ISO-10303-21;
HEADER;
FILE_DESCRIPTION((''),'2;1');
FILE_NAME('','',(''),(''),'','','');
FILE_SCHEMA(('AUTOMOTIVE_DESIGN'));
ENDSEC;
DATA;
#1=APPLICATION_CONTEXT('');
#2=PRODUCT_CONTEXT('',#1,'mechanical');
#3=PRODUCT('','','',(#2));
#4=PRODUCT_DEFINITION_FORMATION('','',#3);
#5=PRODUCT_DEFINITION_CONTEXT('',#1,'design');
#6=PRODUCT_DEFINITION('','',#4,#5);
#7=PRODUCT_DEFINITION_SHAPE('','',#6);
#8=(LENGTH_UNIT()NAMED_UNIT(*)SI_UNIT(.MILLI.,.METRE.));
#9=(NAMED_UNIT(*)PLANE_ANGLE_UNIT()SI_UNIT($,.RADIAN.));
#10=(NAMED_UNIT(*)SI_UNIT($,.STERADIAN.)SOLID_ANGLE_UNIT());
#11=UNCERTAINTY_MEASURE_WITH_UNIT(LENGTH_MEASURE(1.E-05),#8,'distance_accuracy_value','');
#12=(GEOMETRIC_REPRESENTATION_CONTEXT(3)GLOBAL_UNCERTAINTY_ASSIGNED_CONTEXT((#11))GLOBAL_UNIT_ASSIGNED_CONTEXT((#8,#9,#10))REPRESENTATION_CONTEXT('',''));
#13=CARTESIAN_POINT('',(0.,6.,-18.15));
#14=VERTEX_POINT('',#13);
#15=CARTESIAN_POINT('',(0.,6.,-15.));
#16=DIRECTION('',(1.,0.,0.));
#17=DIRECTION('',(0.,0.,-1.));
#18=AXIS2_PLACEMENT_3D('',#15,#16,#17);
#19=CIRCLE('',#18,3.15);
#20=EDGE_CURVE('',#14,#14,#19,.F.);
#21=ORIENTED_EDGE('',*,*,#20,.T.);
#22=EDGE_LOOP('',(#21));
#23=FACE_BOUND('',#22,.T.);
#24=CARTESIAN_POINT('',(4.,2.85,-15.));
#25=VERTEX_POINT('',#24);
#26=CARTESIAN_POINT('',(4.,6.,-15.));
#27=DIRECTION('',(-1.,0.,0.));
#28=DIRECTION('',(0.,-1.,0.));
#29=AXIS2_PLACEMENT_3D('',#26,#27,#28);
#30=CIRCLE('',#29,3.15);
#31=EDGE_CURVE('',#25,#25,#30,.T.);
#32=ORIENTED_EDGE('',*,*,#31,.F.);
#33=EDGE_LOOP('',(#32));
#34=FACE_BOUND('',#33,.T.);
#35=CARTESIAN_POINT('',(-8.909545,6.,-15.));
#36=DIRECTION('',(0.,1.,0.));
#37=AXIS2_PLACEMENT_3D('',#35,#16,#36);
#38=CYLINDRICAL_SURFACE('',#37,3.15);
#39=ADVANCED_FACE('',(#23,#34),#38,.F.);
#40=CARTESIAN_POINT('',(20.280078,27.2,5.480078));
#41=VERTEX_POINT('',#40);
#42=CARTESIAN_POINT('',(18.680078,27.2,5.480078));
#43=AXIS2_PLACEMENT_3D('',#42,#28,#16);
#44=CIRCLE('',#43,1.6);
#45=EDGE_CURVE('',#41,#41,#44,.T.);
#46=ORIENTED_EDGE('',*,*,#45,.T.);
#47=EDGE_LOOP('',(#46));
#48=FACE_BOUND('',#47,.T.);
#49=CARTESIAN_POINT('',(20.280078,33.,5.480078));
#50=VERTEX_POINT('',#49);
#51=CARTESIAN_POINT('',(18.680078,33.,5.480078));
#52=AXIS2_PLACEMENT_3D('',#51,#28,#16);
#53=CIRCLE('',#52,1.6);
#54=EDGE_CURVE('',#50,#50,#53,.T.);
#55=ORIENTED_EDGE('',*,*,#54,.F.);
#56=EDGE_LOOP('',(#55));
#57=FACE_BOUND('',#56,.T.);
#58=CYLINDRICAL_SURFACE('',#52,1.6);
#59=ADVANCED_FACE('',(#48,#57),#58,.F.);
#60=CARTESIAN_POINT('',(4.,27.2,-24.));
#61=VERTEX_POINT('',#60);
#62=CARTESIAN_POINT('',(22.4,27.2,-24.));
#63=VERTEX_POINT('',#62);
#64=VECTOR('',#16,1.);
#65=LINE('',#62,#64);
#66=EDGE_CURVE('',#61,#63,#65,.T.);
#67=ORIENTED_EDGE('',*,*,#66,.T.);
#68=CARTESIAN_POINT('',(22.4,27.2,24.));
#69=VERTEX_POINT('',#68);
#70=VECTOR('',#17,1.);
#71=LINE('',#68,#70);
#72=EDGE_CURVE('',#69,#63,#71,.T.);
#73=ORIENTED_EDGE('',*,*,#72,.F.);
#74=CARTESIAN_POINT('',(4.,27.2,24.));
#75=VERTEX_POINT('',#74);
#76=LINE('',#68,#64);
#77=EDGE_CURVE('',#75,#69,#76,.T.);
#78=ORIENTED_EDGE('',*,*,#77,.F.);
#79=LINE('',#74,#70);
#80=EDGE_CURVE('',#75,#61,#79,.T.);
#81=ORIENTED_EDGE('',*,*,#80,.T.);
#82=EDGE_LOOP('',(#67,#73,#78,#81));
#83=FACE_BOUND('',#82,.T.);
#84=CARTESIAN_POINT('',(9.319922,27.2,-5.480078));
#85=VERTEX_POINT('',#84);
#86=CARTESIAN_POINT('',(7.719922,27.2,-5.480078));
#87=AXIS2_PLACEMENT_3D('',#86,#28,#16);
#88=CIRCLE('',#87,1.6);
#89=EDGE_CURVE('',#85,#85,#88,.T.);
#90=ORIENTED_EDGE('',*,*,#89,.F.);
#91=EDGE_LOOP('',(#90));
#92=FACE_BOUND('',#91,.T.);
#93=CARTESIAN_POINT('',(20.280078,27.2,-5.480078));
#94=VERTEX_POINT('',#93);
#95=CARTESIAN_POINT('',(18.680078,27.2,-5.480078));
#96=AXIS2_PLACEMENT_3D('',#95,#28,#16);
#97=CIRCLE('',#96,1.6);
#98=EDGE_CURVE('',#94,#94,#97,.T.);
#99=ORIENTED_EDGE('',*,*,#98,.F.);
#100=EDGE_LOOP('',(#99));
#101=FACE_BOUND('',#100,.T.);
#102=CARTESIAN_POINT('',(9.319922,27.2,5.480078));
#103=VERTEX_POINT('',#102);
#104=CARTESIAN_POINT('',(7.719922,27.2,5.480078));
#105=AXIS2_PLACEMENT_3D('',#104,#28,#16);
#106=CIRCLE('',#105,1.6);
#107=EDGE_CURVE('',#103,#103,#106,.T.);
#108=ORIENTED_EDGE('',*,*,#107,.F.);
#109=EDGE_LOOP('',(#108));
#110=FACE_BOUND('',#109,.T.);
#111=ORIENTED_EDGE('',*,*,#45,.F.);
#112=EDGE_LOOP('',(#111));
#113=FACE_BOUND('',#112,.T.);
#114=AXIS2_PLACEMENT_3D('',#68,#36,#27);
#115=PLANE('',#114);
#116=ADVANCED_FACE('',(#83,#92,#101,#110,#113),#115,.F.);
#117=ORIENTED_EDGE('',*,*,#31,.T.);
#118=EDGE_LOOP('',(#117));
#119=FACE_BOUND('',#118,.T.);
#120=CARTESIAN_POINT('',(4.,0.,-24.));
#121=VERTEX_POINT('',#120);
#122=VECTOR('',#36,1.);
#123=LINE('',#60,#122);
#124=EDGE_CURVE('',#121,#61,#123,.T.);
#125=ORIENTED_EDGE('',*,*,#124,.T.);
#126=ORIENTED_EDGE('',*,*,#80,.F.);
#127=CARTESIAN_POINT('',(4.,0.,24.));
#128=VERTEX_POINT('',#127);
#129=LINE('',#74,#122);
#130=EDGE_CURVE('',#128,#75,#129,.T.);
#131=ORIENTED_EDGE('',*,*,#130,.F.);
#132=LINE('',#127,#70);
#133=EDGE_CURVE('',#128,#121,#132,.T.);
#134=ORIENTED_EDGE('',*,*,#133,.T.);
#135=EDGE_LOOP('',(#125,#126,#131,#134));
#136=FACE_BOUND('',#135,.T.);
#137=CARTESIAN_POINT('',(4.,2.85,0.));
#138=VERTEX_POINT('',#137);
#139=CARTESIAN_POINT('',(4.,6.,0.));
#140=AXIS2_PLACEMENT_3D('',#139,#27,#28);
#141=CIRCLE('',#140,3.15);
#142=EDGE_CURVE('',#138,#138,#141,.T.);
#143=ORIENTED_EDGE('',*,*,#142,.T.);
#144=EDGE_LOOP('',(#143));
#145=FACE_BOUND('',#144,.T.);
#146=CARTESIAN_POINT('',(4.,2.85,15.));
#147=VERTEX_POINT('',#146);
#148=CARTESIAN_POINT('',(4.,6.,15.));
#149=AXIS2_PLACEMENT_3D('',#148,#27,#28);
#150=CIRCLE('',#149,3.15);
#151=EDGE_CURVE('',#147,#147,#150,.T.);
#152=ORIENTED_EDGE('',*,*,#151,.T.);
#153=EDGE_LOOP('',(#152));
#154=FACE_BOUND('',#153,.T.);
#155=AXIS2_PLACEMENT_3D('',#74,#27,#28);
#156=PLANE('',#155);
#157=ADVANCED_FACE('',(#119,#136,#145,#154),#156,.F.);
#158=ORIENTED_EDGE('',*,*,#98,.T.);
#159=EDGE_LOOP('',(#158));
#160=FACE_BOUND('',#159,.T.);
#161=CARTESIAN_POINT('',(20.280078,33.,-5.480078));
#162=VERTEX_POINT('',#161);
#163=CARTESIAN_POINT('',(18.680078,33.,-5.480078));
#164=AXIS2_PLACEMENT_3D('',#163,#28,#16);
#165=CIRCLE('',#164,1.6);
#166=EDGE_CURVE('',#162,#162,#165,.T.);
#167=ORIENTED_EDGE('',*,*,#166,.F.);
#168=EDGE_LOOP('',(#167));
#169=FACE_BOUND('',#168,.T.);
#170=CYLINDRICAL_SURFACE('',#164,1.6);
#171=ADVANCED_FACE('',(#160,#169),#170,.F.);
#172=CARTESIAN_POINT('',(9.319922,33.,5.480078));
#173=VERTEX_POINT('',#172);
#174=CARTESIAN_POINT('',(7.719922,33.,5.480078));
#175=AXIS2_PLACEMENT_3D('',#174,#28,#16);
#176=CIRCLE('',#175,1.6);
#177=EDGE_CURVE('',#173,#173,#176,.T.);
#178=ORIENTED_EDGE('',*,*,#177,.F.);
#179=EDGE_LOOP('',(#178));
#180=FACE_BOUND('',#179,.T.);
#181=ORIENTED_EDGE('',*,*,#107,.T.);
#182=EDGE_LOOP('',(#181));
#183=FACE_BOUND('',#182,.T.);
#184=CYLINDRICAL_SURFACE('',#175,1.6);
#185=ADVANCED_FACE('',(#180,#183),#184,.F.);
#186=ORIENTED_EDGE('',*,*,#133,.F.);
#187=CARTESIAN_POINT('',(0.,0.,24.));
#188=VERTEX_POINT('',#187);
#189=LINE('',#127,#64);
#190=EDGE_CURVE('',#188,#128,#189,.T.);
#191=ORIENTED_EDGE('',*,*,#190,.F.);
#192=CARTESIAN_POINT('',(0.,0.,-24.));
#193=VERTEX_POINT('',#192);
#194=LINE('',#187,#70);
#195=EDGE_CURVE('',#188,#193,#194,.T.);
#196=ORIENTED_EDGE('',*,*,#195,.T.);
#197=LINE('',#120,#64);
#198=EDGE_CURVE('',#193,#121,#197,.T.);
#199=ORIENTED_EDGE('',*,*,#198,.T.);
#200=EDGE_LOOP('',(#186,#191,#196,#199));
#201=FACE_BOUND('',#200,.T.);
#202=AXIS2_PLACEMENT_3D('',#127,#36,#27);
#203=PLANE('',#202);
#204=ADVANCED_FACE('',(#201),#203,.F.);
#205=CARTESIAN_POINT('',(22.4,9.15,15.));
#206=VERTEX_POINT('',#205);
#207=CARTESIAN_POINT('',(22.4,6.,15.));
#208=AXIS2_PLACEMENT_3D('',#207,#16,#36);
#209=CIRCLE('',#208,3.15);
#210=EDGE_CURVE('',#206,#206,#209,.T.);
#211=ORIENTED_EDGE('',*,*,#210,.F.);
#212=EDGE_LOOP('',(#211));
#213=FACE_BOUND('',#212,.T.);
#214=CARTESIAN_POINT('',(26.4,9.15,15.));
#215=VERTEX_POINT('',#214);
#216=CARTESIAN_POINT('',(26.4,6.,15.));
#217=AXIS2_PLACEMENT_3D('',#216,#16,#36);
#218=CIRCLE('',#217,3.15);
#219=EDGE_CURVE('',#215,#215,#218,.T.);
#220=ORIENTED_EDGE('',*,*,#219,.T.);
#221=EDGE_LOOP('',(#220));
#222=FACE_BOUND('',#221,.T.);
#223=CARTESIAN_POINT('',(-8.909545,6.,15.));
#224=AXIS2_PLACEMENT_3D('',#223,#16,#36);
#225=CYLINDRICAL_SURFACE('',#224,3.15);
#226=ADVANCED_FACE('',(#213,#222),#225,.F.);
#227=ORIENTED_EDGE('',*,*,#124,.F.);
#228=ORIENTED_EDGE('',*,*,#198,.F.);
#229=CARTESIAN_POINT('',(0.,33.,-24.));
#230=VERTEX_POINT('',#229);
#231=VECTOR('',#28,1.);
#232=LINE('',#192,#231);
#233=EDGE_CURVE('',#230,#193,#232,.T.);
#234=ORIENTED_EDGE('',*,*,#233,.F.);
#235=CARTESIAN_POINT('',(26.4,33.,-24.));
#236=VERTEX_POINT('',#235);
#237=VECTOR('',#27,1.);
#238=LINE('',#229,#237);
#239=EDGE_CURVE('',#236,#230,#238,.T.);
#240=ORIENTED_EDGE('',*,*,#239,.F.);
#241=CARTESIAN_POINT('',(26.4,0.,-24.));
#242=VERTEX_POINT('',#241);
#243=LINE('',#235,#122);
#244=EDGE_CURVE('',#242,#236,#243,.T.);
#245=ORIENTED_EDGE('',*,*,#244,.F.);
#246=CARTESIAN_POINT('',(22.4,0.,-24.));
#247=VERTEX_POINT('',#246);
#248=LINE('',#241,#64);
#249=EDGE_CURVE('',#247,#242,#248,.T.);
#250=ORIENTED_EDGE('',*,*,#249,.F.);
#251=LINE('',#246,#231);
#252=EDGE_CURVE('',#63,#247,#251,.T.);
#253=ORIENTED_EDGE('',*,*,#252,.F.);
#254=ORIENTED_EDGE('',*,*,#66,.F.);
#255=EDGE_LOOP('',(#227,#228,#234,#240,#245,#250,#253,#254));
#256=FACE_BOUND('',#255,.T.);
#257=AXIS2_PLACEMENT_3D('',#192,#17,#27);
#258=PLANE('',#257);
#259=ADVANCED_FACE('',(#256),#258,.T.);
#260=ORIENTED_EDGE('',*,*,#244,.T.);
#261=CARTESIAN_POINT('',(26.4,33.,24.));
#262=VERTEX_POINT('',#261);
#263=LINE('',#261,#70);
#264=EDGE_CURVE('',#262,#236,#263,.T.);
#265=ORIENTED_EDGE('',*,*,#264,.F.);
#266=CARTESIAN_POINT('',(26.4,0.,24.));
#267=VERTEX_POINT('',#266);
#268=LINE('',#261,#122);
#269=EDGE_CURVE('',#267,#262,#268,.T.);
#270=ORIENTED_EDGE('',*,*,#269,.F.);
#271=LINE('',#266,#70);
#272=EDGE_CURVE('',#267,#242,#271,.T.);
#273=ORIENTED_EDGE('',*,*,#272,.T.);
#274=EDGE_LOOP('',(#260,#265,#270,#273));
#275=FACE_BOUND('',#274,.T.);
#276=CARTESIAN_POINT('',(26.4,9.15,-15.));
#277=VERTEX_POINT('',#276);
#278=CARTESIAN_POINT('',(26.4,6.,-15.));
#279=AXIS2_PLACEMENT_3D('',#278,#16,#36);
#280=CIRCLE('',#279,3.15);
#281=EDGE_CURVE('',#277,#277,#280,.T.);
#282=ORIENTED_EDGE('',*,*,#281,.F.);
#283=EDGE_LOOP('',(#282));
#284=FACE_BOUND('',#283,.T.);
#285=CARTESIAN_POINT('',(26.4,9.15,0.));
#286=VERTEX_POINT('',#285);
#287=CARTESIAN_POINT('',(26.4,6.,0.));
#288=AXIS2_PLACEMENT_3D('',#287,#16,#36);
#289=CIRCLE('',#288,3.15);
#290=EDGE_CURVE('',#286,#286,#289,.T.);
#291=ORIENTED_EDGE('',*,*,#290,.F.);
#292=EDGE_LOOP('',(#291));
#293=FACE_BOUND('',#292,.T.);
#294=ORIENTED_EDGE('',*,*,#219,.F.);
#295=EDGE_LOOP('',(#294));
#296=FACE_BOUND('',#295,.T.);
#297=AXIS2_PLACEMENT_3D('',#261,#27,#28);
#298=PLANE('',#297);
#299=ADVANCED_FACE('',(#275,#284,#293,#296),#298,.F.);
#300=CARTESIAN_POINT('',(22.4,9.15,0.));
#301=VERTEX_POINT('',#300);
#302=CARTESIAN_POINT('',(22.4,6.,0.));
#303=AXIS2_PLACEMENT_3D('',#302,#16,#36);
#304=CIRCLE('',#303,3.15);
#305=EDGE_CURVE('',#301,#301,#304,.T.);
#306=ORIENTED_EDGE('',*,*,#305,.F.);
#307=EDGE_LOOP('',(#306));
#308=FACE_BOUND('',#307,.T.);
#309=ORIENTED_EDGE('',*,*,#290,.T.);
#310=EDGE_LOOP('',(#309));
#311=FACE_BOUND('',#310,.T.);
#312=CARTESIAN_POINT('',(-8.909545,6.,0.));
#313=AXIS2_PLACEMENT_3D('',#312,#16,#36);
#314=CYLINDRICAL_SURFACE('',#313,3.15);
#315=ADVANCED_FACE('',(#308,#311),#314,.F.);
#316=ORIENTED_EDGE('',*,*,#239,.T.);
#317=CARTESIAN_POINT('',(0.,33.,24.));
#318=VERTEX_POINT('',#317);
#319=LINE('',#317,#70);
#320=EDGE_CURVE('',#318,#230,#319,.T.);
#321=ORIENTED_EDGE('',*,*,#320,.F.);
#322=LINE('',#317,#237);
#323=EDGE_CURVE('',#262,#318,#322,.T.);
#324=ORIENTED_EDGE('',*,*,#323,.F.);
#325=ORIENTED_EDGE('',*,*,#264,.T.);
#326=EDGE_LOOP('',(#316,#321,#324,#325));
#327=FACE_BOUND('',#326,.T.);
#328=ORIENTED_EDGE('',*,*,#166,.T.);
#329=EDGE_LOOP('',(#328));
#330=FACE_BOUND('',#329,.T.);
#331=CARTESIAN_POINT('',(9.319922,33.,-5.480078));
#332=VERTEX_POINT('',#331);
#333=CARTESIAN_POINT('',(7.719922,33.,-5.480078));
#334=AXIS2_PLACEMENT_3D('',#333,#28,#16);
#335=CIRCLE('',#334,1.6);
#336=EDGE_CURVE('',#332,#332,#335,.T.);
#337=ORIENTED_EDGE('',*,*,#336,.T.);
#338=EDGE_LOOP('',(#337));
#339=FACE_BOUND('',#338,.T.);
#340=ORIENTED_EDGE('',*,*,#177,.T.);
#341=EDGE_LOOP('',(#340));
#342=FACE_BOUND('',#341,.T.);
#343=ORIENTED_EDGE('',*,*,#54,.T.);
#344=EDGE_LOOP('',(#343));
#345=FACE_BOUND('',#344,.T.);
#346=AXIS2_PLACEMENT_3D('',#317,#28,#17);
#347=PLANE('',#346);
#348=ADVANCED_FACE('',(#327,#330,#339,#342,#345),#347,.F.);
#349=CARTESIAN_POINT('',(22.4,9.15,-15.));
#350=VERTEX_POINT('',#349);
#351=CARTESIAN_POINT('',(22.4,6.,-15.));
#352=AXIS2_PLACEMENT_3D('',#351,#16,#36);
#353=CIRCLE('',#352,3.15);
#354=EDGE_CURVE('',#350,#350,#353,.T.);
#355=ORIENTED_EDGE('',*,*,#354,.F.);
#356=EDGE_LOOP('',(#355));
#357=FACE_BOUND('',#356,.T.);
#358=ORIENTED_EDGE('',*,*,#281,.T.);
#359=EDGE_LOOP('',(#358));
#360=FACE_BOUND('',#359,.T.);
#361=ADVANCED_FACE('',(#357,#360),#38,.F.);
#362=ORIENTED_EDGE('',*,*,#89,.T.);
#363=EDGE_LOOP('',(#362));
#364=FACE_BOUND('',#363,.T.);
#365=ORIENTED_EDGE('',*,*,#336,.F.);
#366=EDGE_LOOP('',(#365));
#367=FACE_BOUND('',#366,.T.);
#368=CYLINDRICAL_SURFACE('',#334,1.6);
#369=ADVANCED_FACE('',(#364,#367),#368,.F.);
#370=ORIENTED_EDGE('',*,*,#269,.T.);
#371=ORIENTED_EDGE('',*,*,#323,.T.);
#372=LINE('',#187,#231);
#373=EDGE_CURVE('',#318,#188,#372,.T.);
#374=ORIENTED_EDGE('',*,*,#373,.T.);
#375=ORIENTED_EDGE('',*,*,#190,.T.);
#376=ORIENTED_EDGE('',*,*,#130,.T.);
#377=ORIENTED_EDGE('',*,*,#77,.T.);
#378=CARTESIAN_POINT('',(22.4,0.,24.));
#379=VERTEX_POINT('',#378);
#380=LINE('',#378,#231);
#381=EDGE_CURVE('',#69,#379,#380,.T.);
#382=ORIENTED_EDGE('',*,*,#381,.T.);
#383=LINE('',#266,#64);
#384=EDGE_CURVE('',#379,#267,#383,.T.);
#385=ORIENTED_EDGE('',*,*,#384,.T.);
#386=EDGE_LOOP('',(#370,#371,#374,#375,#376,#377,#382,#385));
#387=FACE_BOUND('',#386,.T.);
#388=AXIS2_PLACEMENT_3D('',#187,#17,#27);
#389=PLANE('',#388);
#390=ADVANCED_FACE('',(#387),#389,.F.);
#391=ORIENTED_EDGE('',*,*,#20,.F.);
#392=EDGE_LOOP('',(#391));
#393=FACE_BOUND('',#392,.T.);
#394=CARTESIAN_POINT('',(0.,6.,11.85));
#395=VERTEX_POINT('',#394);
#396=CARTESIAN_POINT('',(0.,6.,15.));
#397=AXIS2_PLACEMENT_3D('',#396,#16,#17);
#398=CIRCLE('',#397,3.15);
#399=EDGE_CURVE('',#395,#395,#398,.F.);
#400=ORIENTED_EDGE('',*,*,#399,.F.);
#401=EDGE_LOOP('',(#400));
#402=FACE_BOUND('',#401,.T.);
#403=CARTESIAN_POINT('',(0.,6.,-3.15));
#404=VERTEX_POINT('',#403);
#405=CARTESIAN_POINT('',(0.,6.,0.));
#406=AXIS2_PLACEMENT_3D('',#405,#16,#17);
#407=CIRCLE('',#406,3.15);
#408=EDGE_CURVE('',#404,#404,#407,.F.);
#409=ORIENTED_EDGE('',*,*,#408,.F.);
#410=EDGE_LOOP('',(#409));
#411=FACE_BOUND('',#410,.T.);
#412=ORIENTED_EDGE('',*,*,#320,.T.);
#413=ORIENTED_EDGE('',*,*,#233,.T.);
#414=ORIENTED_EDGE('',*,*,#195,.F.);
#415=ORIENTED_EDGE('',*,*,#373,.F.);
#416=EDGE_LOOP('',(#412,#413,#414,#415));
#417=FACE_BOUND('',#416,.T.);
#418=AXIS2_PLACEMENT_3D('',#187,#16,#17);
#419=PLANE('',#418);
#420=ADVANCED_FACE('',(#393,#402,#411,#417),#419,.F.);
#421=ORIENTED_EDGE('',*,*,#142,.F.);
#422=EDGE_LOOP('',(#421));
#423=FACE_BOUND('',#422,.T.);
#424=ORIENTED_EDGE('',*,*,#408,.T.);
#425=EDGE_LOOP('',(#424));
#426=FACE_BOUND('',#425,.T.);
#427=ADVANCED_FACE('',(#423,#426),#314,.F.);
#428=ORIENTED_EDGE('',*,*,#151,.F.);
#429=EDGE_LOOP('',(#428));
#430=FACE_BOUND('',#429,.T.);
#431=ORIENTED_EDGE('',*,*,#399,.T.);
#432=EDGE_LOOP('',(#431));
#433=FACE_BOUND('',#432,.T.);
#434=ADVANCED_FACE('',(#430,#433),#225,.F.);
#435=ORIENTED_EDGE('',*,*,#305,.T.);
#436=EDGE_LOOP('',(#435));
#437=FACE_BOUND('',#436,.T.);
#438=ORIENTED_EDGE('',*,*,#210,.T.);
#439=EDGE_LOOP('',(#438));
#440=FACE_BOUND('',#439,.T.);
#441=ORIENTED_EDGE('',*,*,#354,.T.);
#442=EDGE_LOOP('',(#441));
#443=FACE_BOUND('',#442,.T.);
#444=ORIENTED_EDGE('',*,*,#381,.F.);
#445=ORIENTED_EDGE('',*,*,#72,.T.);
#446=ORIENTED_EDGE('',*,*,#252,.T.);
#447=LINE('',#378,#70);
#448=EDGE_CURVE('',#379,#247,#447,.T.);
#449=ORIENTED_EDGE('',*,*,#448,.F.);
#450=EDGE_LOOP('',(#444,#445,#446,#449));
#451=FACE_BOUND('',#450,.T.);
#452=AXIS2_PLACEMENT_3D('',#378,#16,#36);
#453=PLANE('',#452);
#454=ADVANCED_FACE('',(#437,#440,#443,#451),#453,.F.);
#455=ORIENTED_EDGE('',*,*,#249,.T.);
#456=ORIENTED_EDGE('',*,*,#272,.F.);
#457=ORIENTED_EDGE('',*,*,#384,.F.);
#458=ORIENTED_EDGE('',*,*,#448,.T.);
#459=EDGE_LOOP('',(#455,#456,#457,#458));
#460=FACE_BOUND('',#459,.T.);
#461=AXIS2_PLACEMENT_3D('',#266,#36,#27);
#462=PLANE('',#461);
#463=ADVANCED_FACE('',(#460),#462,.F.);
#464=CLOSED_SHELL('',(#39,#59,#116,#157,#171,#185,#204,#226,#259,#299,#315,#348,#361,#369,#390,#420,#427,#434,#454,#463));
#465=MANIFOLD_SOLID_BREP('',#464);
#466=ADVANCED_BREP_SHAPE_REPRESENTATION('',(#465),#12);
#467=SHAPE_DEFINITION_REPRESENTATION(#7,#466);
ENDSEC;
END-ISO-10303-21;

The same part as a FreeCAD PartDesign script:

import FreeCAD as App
import Part
import Sketcher
from FreeCAD import Vector
Q = App.Units.Quantity


def add_polygon(sketch, points):
    """Adds a closed chain of lines whose ends are joined by coincident constraints."""
    first, n = sketch.GeometryCount, len(points)
    for a, b in zip(points, points[1:] + points[:1]):
        sketch.addGeometry(Part.LineSegment(App.Vector(*a, 0), App.Vector(*b, 0)), False)
    for i in range(n):
        sketch.addConstraint(Sketcher.Constraint("Coincident", first + i, 2, first + (i + 1) % n, 1))

doc = App.newDocument("Part")
body = doc.addObject("PartDesign::Body", "Body")

# Sketch on XY plane
sketch1 = body.newObject("Sketcher::SketchObject", "Sketch")
sketch1.AttachmentSupport = (doc.getObject("XY_Plane"), [""])
sketch1.MapMode = "FlatFace"
add_polygon(sketch1, [(0, 33), (0, 0), (4, 0), (4, 27.2), (22.4, 27.2), (22.4, 0), (26.4, 0), (26.4, 33)])  # lines 0-7
sketch1.addConstraint(Sketcher.Constraint("Vertical", 0))
sketch1.addConstraint(Sketcher.Constraint("Horizontal", 1))
sketch1.addConstraint(Sketcher.Constraint("Vertical", 2))
sketch1.addConstraint(Sketcher.Constraint("Horizontal", 3))
sketch1.addConstraint(Sketcher.Constraint("Vertical", 4))
sketch1.addConstraint(Sketcher.Constraint("Horizontal", 5))
sketch1.addConstraint(Sketcher.Constraint("Vertical", 6))
sketch1.addConstraint(Sketcher.Constraint("Horizontal", 7))
sketch1.addConstraint(Sketcher.Constraint("Coincident", 0, 2, -1, 1))
sketch1.addConstraint(Sketcher.Constraint("PointOnObject", 4, 2, -1))
sketch1.addConstraint(Sketcher.Constraint("Equal", 1, 5))
sketch1.addConstraint(Sketcher.Constraint("DistanceX", 1, 1, 1, 2, Q("4 mm")))
sketch1.addConstraint(Sketcher.Constraint("DistanceY", 0, 2, 0, 1, Q("33 mm")))
sketch1.addConstraint(Sketcher.Constraint("DistanceX", 3, 1, 3, 2, Q("18.4 mm")))
sketch1.addConstraint(Sketcher.Constraint("DistanceY", 2, 1, 2, 2, Q("27.2 mm")))
pad1 = body.newObject("PartDesign::Pad", "Pad")
pad1.Profile = sketch1
pad1.Length = 48
pad1.Midplane = True

# Sketch on XZ plane
sketch2 = body.newObject("Sketcher::SketchObject", "Sketch001")
sketch2.AttachmentSupport = (doc.getObject("XZ_Plane"), [""])
sketch2.MapMode = "FlatFace"
sketch2.AttachmentOffset = App.Placement(Vector(0, 0, -27.2), App.Rotation())
sketch2.addGeometry(Part.Circle(Vector(7.7, 5.5, 0), Vector(0, 0, 1), 1.6), False)
sketch2.addGeometry(Part.Circle(Vector(18.7, 5.5, 0), Vector(0, 0, 1), 1.6), False)
sketch2.addGeometry(Part.Circle(Vector(18.7, -5.5, 0), Vector(0, 0, 1), 1.6), False)
sketch2.addGeometry(Part.Circle(Vector(7.7, -5.5, 0), Vector(0, 0, 1), 1.6), False)
sketch2.addConstraint(Sketcher.Constraint("Equal", 0, 1))
sketch2.addConstraint(Sketcher.Constraint("Equal", 1, 2))
sketch2.addConstraint(Sketcher.Constraint("Equal", 2, 3))
sketch2.addConstraint(Sketcher.Constraint("Symmetric", 1, 3, 2, 3, -1))
sketch2.addConstraint(Sketcher.Constraint("Symmetric", 0, 3, 3, 3, -1))
sketch2.addConstraint(Sketcher.Constraint("Horizontal", 0, 3, 1, 3))
sketch2.addConstraint(Sketcher.Constraint("Diameter", 0, Q("3.2 mm")))
sketch2.addConstraint(Sketcher.Constraint("DistanceX", -1, 1, 0, 3, Q("7.719922 mm")))
sketch2.addConstraint(Sketcher.Constraint("DistanceY", -1, 1, 0, 3, Q("5.480078 mm")))
sketch2.addConstraint(Sketcher.Constraint("DistanceX", -1, 1, 1, 3, Q("18.680078 mm")))
pocket1 = body.newObject("PartDesign::Pocket", "Pocket")
pocket1.Profile = sketch2
pocket1.Type = "ThroughAll"

# Sketch on YZ plane
sketch3 = body.newObject("Sketcher::SketchObject", "Sketch002")
sketch3.AttachmentSupport = (doc.getObject("YZ_Plane"), [""])
sketch3.MapMode = "FlatFace"
sketch3.AttachmentOffset = App.Placement(Vector(0, 0, 26.4), App.Rotation())
sketch3.addGeometry(Part.Circle(Vector(6, 0, 0), Vector(0, 0, 1), 3.1), False)
sketch3.addGeometry(Part.Circle(Vector(6, -15, 0), Vector(0, 0, 1), 3.1), False)
sketch3.addGeometry(Part.Circle(Vector(6, 15, 0), Vector(0, 0, 1), 3.1), False)
sketch3.addConstraint(Sketcher.Constraint("Equal", 0, 1))
sketch3.addConstraint(Sketcher.Constraint("Equal", 1, 2))
sketch3.addConstraint(Sketcher.Constraint("Symmetric", 1, 3, 2, 3, -1))
sketch3.addConstraint(Sketcher.Constraint("PointOnObject", 0, 3, -1))
sketch3.addConstraint(Sketcher.Constraint("Vertical", 0, 3, 1, 3))
sketch3.addConstraint(Sketcher.Constraint("Diameter", 0, Q("6.3 mm")))
sketch3.addConstraint(Sketcher.Constraint("DistanceX", -1, 1, 0, 3, Q("6 mm")))
sketch3.addConstraint(Sketcher.Constraint("DistanceY", 1, 3, -1, 1, Q("15 mm")))
pocket2 = body.newObject("PartDesign::Pocket", "Pocket001")
pocket2.Profile = sketch3
pocket2.Length = 26.4

doc.recompute()
